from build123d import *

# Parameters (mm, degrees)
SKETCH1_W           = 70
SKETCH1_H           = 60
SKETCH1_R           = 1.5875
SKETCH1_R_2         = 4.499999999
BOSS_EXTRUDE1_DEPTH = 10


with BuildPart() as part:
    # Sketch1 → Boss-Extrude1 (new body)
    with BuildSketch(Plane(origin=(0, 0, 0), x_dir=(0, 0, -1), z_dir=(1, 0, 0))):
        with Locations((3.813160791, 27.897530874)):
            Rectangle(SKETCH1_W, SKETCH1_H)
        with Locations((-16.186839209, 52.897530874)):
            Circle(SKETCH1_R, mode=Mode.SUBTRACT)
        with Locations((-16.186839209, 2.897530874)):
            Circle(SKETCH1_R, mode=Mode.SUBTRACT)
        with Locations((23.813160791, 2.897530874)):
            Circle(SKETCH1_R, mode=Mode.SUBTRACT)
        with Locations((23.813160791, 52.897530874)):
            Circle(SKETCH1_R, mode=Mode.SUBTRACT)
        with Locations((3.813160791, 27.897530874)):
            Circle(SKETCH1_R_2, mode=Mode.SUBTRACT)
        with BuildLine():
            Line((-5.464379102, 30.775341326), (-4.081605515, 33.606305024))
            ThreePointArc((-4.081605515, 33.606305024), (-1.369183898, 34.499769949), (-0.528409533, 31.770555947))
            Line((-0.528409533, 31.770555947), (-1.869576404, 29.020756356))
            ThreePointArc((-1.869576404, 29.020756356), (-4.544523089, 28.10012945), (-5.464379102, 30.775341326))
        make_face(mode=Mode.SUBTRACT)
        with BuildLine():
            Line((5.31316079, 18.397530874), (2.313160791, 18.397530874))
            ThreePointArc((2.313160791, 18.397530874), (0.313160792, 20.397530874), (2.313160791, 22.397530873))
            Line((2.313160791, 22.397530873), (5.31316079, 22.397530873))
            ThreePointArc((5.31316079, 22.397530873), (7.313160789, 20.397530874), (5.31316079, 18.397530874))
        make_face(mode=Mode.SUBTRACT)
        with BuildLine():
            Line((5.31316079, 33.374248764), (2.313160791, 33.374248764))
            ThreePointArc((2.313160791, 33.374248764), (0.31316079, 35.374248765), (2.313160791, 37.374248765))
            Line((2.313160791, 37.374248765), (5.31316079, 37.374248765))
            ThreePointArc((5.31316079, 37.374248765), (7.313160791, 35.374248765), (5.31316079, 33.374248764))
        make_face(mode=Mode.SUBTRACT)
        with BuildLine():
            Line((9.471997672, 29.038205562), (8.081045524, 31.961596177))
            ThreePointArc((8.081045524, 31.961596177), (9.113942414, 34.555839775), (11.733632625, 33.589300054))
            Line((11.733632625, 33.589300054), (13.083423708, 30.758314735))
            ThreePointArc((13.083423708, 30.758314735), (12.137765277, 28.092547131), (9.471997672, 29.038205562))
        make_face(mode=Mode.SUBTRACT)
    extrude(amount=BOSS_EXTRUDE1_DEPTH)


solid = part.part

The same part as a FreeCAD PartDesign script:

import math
import FreeCAD as App
import Part
import Sketcher
Q = App.Units.Quantity

doc = App.newDocument("Part")
body = doc.addObject("PartDesign::Body", "Body")

# Sketch on YZ plane
sketch1 = body.newObject("Sketcher::SketchObject", "Sketch")
sketch1.AttachmentSupport = (doc.getObject("YZ_Plane"), [""])
sketch1.MapMode = "FlatFace"
sketch1.addGeometry([
    Part.LineSegment(App.Vector(57.9, 31.2, 0), App.Vector(-2.1, 31.2, 0)),  # 0
    Part.LineSegment(App.Vector(-2.1, 31.2, 0), App.Vector(-2.1, -38.8, 0)),  # 1
    Part.LineSegment(App.Vector(-2.1, -38.8, 0), App.Vector(57.9, -38.8, 0)),  # 2
    Part.LineSegment(App.Vector(57.9, -38.8, 0), App.Vector(57.9, 31.2, 0)),  # 3
    Part.Circle(App.Vector(2.9, 16.2, 0), App.Vector(0, 0, 1), 1.6),  # 4
    Part.ArcOfCircle(Part.Circle(App.Vector(20.4, -5.3, 0), App.Vector(0, 0, 1), 2), math.radians(-180), math.radians(0)),  # 5
    Part.LineSegment(App.Vector(18.4, -5.3, 0), App.Vector(18.4, -2.3, 0)),  # 6
    Part.ArcOfCircle(Part.Circle(App.Vector(20.4, -2.3, 0), App.Vector(0, 0, 1), 2), math.radians(0), math.radians(180)),  # 7
    Part.LineSegment(App.Vector(22.4, -2.3, 0), App.Vector(22.4, -5.3, 0)),  # 8
    Part.Circle(App.Vector(2.9, -23.8, 0), App.Vector(0, 0, 1), 1.6),  # 9
    Part.ArcOfCircle(Part.Circle(App.Vector(29.9, 3.7, 0), App.Vector(0, 0, 1), 2), math.radians(64), math.radians(244)),  # 10
    Part.LineSegment(App.Vector(30.8, 5.5, 0), App.Vector(33.6, 4.1, 0)),  # 11
    Part.ArcOfCircle(Part.Circle(App.Vector(32.7, 2.3, 0), App.Vector(0, 0, 1), 2), math.radians(-118), math.radians(64)),  # 12
    Part.LineSegment(App.Vector(31.8, 0.5, 0), App.Vector(29, 1.9, 0)),  # 13
    Part.ArcOfCircle(Part.Circle(App.Vector(35.4, -5.3, 0), App.Vector(0, 0, 1), 2), math.radians(180), math.radians(360)),  # 14
    Part.LineSegment(App.Vector(33.4, -5.3, 0), App.Vector(33.4, -2.3, 0)),  # 15
    Part.ArcOfCircle(Part.Circle(App.Vector(35.4, -2.3, 0), App.Vector(0, 0, 1), 2), math.radians(0), math.radians(180)),  # 16
    Part.LineSegment(App.Vector(37.4, -2.3, 0), App.Vector(37.4, -5.3, 0)),  # 17
    Part.Circle(App.Vector(52.9, 16.2, 0), App.Vector(0, 0, 1), 1.6),  # 18
    Part.Circle(App.Vector(27.9, -3.8, 0), App.Vector(0, 0, 1), 4.5),  # 19
    Part.ArcOfCircle(Part.Circle(App.Vector(29.9, -11.3, 0), App.Vector(0, 0, 1), 2), math.radians(115), math.radians(295)),  # 20
    Part.LineSegment(App.Vector(29, -9.5, 0), App.Vector(32, -8.1, 0)),  # 21
    Part.ArcOfCircle(Part.Circle(App.Vector(32.7, -9.9, 0), App.Vector(0, 0, 1), 2), math.radians(-65), math.radians(113)),  # 22
    Part.LineSegment(App.Vector(33.6, -11.7, 0), App.Vector(30.8, -13.1, 0)),  # 23
    Part.Circle(App.Vector(52.9, -23.8, 0), App.Vector(0, 0, 1), 1.6),  # 24
], False)
sketch1.addConstraint([
    Sketcher.Constraint("Coincident", 0, 2, 1, 1),
    Sketcher.Constraint("Coincident", 1, 2, 2, 1),
    Sketcher.Constraint("Coincident", 2, 2, 3, 1),
    Sketcher.Constraint("Coincident", 3, 2, 0, 1),
    Sketcher.Constraint("Tangent", 5, 1, 6, 1),
    Sketcher.Constraint("Tangent", 6, 2, 7, 2),
    Sketcher.Constraint("Tangent", 7, 1, 8, 1),
    Sketcher.Constraint("Tangent", 8, 2, 5, 2),
    Sketcher.Constraint("Tangent", 10, 1, 11, 1),
    Sketcher.Constraint("Coincident", 11, 2, 12, 2),
    Sketcher.Constraint("Coincident", 12, 1, 13, 1),
    Sketcher.Constraint("Tangent", 13, 2, 10, 2),
    Sketcher.Constraint("Tangent", 14, 1, 15, 1),
    Sketcher.Constraint("Tangent", 15, 2, 16, 2),
    Sketcher.Constraint("Tangent", 16, 1, 17, 1),
    Sketcher.Constraint("Tangent", 17, 2, 14, 2),
    Sketcher.Constraint("Coincident", 20, 1, 21, 1),
    Sketcher.Constraint("Coincident", 21, 2, 22, 2),
    Sketcher.Constraint("Coincident", 22, 1, 23, 1),
    Sketcher.Constraint("Coincident", 23, 2, 20, 2),
    Sketcher.Constraint("Horizontal", 0),
    Sketcher.Constraint("Vertical", 1),
    Sketcher.Constraint("Horizontal", 2),
    Sketcher.Constraint("Vertical", 3),
    Sketcher.Constraint("Vertical", 6),
    Sketcher.Constraint("Vertical", 8),
    Sketcher.Constraint("Vertical", 15),
    Sketcher.Constraint("Vertical", 17),
    Sketcher.Constraint("Equal", 4, 9),
    Sketcher.Constraint("Equal", 10, 12),
    Sketcher.Constraint("Equal", 7, 14),
    Sketcher.Constraint("Equal", 9, 18),
    Sketcher.Constraint("Equal", 12, 20),
    Sketcher.Constraint("Equal", 20, 22),
    Sketcher.Constraint("Equal", 18, 24),
    Sketcher.Constraint("Horizontal", 5, 3, 14, 3),
    Sketcher.Constraint("Horizontal", 7, 3, 16, 3),
    Sketcher.Constraint("Horizontal", 4, 3, 18, 3),
    Sketcher.Constraint("Horizontal", 9, 3, 24, 3),
    Sketcher.Constraint("Vertical", 4, 3, 9, 3),
    Sketcher.Constraint("Vertical", 18, 3, 24, 3),
    Sketcher.Constraint("Diameter", 19, Q("9 mm")),
    Sketcher.Constraint("Radius", 5, Q("2 mm")),
    Sketcher.Constraint("DistanceX", 0, 2, 0, 1, Q("60 mm")),
    Sketcher.Constraint("DistanceY", 1, 2, 1, 1, Q("70 mm")),
    Sketcher.Constraint("DistanceY", 6, 1, 6, 2, Q("3 mm")),
    Sketcher.Constraint("Angle", 13, Q("154 deg")),
    Sketcher.Constraint("Diameter", 4, Q("3.175 mm")),
    Sketcher.Constraint("DistanceY", 9, 3, 4, 3, Q("40 mm")),
    Sketcher.Constraint("DistanceX", 4, 3, 10, 3, Q("27 mm")),
    Sketcher.Constraint("DistanceX", 10, 3, 18, 3, Q("23 mm")),
    Sketcher.Constraint("DistanceX", 19, 3, 10, 3, Q("2 mm")),
    Sketcher.Constraint("DistanceY", 24, 3, 19, 3, Q("20 mm")),
    Sketcher.Constraint("DistanceX", 0, 2, 4, 3, Q("5 mm")),
    Sketcher.Constraint("DistanceY", 4, 3, 0, 2, Q("15 mm")),
    Sketcher.Constraint("DistanceX", 4, 3, 5, 3, Q("17.5 mm")),
    Sketcher.Constraint("DistanceY", 5, 3, 4, 3, Q("21.5 mm")),
    Sketcher.Constraint("DistanceY", 12, 3, 10, 3, Q("1.38 mm")),
    Sketcher.Constraint("Radius", 10, Q("2.000074 mm")),
    Sketcher.Constraint("DistanceX", -1, 1, 22, 1, Q("33.5893 mm")),
    Sketcher.Constraint("DistanceX", 13, 2, 12, 1, Q("2.7498 mm")),
    Sketcher.Constraint("Distance", 11, Q("3.150622 mm")),
    Sketcher.Constraint("Distance", 21, Q("3.237431 mm")),
    Sketcher.Constraint("DistanceX", -1, 1, 4, 3, Q("2.897531 mm")),
    Sketcher.Constraint("DistanceY", -1, 1, 4, 3, Q("16.186839 mm")),
    Sketcher.Constraint("DistanceY", -1, 1, 10, 3, Q("3.667231 mm")),
    Sketcher.Constraint("DistanceX", -1, 1, 14, 3, Q("35.374249 mm")),
    Sketcher.Constraint("DistanceX", -1, 1, 20, 3, Q("29.89826 mm")),
    Sketcher.Constraint("DistanceY", 20, 3, -1, 1, Q("11.277711 mm")),
    Sketcher.Constraint("DistanceY", 22, 3, -1, 1, Q("9.928058 mm")),
    Sketcher.Constraint("DistanceX", 20, 1, 22, 3, Q("3.690749 mm")),
    Sketcher.Constraint("DistanceY", 22, 3, 20, 1, Q("0.45606 mm")),
    Sketcher.Constraint("DistanceY", 23, 2, 22, 1, Q("1.349791 mm")),
])
pad1 = body.newObject("PartDesign::Pad", "Pad")
pad1.Profile = sketch1
pad1.Length = 10

doc.recompute()
